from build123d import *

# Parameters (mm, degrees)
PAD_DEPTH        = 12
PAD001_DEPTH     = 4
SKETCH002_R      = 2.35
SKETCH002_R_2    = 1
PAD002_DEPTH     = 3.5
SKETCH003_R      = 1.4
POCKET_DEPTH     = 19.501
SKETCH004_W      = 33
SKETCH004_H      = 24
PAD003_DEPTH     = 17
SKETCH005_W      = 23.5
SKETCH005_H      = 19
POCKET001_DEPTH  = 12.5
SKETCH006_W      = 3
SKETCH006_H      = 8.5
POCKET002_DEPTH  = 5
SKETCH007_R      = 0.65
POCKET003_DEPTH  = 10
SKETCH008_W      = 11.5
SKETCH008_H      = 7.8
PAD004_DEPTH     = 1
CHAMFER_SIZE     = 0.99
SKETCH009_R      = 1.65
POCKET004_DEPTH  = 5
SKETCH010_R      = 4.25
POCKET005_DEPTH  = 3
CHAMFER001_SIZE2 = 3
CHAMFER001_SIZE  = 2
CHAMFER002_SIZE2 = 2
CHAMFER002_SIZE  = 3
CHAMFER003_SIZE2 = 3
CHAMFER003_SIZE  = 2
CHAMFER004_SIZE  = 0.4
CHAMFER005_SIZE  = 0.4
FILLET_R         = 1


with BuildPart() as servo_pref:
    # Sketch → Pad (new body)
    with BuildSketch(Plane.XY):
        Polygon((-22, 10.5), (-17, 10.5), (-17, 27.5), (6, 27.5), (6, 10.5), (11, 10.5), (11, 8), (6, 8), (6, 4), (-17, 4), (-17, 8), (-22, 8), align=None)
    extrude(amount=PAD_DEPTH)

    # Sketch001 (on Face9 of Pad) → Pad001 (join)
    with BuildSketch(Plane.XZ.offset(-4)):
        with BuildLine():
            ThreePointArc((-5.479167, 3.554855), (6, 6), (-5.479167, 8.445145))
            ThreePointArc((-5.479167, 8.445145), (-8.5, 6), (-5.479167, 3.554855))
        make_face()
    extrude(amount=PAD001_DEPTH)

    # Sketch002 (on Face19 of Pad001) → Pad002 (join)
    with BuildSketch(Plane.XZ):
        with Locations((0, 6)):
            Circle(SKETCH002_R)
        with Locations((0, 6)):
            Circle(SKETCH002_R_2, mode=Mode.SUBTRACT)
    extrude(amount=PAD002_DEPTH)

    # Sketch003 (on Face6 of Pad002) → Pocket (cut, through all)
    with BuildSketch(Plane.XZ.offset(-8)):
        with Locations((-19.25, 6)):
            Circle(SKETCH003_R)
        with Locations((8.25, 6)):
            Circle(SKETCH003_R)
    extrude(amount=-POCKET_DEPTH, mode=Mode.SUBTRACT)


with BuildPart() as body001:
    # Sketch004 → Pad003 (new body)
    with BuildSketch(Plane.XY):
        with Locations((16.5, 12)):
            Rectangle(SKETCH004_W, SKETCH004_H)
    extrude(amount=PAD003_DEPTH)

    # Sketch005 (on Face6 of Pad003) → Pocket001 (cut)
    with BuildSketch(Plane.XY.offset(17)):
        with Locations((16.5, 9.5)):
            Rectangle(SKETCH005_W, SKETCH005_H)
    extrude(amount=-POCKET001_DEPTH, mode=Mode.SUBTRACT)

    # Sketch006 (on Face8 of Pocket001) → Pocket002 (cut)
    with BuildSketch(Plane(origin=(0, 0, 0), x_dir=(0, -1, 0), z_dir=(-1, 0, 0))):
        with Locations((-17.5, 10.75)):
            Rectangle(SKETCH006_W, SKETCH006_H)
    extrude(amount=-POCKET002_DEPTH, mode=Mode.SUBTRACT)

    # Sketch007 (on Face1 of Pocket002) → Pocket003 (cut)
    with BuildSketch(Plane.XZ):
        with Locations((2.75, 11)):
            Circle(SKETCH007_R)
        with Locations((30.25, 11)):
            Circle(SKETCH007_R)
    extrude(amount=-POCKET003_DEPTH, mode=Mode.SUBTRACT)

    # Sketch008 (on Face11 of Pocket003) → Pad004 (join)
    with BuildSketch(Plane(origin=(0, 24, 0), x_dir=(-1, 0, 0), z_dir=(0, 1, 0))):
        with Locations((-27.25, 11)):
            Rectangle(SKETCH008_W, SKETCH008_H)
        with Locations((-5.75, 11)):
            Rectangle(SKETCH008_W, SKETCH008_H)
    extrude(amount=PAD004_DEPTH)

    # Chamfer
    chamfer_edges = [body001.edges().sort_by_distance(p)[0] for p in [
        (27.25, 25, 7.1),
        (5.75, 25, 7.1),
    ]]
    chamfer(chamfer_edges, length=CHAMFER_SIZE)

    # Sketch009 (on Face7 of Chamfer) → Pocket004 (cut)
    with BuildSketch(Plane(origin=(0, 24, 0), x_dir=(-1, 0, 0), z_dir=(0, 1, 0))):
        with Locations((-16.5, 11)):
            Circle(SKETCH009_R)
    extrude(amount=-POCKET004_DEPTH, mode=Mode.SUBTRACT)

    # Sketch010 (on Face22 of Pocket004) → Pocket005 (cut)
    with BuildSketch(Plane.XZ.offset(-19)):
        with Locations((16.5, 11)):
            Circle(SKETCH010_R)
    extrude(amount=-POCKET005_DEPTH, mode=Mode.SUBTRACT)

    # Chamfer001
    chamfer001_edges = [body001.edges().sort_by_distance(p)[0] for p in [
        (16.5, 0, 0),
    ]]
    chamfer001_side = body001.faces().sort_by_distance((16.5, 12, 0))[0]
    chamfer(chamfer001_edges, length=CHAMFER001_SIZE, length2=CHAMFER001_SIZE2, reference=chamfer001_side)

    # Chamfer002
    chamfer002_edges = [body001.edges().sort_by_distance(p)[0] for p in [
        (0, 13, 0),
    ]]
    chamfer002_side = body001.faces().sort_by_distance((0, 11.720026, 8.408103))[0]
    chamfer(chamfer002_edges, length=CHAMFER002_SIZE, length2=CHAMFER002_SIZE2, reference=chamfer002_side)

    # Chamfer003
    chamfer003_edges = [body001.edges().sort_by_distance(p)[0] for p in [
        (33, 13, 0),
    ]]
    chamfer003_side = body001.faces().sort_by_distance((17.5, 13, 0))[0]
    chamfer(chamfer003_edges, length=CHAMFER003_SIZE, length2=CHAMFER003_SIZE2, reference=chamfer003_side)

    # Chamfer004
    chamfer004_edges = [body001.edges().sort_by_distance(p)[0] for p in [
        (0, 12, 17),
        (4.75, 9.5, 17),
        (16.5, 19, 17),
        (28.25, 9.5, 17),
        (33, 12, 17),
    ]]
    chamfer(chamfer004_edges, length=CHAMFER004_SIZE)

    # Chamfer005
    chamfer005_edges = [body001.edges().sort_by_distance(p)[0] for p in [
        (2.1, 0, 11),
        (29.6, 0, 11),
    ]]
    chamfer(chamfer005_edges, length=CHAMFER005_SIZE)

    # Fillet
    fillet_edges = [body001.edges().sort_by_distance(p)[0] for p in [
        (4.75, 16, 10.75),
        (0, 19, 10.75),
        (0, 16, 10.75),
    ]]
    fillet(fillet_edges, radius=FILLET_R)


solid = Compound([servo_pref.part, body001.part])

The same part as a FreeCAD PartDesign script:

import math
import FreeCAD as App
import Part
import Sketcher

V = App.Vector
Q = App.Units.Quantity


def edges_at(feature, points):
    """Names of the edges that pass closest to the given points."""
    edges = feature.Shape.Edges
    near = lambda p: min(range(len(edges)), key=lambda i: edges[i].distToShape(Part.Vertex(*p))[0])
    return sorted({f"Edge{near(p) + 1}" for p in points})

doc = App.newDocument("Part")
params = doc.addObject("Spreadsheet::Sheet", "Params")
for row, (alias, value) in enumerate([
    ("sketch1_width", "5 mm"),
    ("sketch1_width2", "23 mm"),
    ("sketch1_height", "4 mm"),
    ("sketch1_height2", "17 mm"),
    ("sketch1_height3", "2.5 mm"),
    ("pad1_length", "12 mm"),
    ("sketch2_radius", "6 mm"),
    ("sketch2_radius2", "2.5 mm"),
    ("pad2_length", "4 mm"),
    ("sketch3_diameter", "2 mm"),
    ("sketch3_diameter2", "4.7 mm"),
    ("pad3_length", "3.5 mm"),
    ("sketch4_diameter", "2.8 mm"),
    ("sketch5_width", "33 mm"),
    ("sketch5_height", "24 mm"),
    ("pad4_length", "17 mm"),
    ("sketch6_height", "19 mm"),
    ("sketch6_width", "23.5 mm"),
    ("pocket2_length", "12.5 mm"),
    ("sketch7_width", "3 mm"),
    ("sketch7_height", "8.5 mm"),
    ("pocket3_length", "5 mm"),
    ("sketch8_diameter", "1.3 mm"),
    ("pocket4_length", "10 mm"),
    ("sketch9_width", "11.5 mm"),
    ("sketch9_height", "7.8 mm"),
    ("pad5_length", "1 mm"),
    ("chamfer_size", "0.99 mm"),
    ("sketch10_diameter", "3.3 mm"),
    ("pocket5_length", "5 mm"),
    ("sketch11_diameter", "8.5 mm"),
    ("pocket6_length", "3 mm"),
    ("chamfer2_size", "2 mm"),
    ("chamfer2_size2", "3 mm"),
    ("chamfer3_size", "3 mm"),
    ("chamfer3_size2", "2 mm"),
    ("chamfer4_size", "2 mm"),
    ("chamfer4_size2", "3 mm"),
    ("chamfer5_size", "0.4 mm"),
    ("chamfer6_size", "0.4 mm"),
    ("fillet_radius", "1 mm"),
], start=1):
    params.set(f"A{row}", alias)
    params.set(f"B{row}", "=" + value)
    params.setAlias(f"B{row}", alias)

body = doc.addObject("PartDesign::Body", "Body")

sketch1 = doc.addObject("Sketcher::SketchObject", "Sketch")
body.addObject(sketch1)
sketch1.AttachmentSupport = (doc.XY_Plane, [""])
sketch1.MapMode = "FlatFace"
sketch1.addGeometry([
    Part.LineSegment(V(-17, 10.5, 0), V(-22, 10.5, 0)),
    Part.LineSegment(V(-22, 10.5, 0), V(-22, 8, 0)),
    Part.LineSegment(V(-22, 8, 0), V(-17, 8, 0)),
    Part.LineSegment(V(-17, 8, 0), V(-17, 4, 0)),
    Part.LineSegment(V(-17, 4, 0), V(6, 4, 0)),
    Part.LineSegment(V(6, 4, 0), V(6, 8, 0)),
    Part.LineSegment(V(6, 8, 0), V(11, 8, 0)),
    Part.LineSegment(V(11, 8, 0), V(11, 10.5, 0)),
    Part.LineSegment(V(11, 10.5, 0), V(6, 10.5, 0)),
    Part.LineSegment(V(6, 10.5, 0), V(6, 27.5, 0)),
    Part.LineSegment(V(6, 27.5, 0), V(-17, 27.5, 0)),
    Part.LineSegment(V(-17, 27.5, 0), V(-17, 10.5, 0)),
], False)
sketch1.addConstraint([
    Sketcher.Constraint("Coincident", 0, 2, 1, 1),
    Sketcher.Constraint("Coincident", 1, 2, 2, 1),
    Sketcher.Constraint("Coincident", 2, 2, 3, 1),
    Sketcher.Constraint("Coincident", 3, 2, 4, 1),
    Sketcher.Constraint("Coincident", 4, 2, 5, 1),
    Sketcher.Constraint("Coincident", 5, 2, 6, 1),
    Sketcher.Constraint("Coincident", 6, 2, 7, 1),
    Sketcher.Constraint("Coincident", 7, 2, 8, 1),
    Sketcher.Constraint("Coincident", 8, 2, 9, 1),
    Sketcher.Constraint("Coincident", 9, 2, 10, 1),
    Sketcher.Constraint("Coincident", 10, 2, 11, 1),
    Sketcher.Constraint("Coincident", 11, 2, 0, 1),
    Sketcher.Constraint("Horizontal", 0),
    Sketcher.Constraint("Vertical", 1),
    Sketcher.Constraint("Horizontal", 2),
    Sketcher.Constraint("Vertical", 3),
    Sketcher.Constraint("Horizontal", 4),
    Sketcher.Constraint("Vertical", 5),
    Sketcher.Constraint("Horizontal", 6),
    Sketcher.Constraint("Vertical", 7),
    Sketcher.Constraint("Horizontal", 8),
    Sketcher.Constraint("Vertical", 9),
    Sketcher.Constraint("Horizontal", 10),
    Sketcher.Constraint("Vertical", 11),
    Sketcher.Constraint("Horizontal", 2, 2, 5, 2),
    Sketcher.Constraint("Horizontal", 0, 2, 7, 2),
    Sketcher.Constraint("Vertical", 5, 2, 8, 2),
    Sketcher.Constraint("Vertical", 3, 2, 10, 2),
    Sketcher.Constraint("Equal", 2, 6),
    Sketcher.Constraint("DistanceX", 0, 2, 0, 1, Q("5 mm")),
    Sketcher.Constraint("DistanceX", 4, 1, 4, 2, Q("23 mm")),
    Sketcher.Constraint("DistanceY", 3, 2, 3, 1, Q("4 mm")),
    Sketcher.Constraint("DistanceY", 9, 1, 9, 2, Q("17 mm")),
    Sketcher.Constraint("DistanceY", 1, 2, 1, 1, Q("2.5 mm")),
    Sketcher.Constraint("DistanceX", 0, 2, -1, 1, Q("22 mm")),
    Sketcher.Constraint("DistanceY", -1, 1, 1, 2, Q("8 mm")),
])
sketch1.setExpression("Constraints[29]", "Params.sketch1_width")
sketch1.setExpression("Constraints[30]", "Params.sketch1_width2")
sketch1.setExpression("Constraints[31]", "Params.sketch1_height")
sketch1.setExpression("Constraints[32]", "Params.sketch1_height2")
sketch1.setExpression("Constraints[33]", "Params.sketch1_height3")
pad1 = doc.addObject("PartDesign::Pad", "Pad")
body.addObject(pad1)
pad1.Profile = sketch1
pad1.setExpression("Length", "Params.pad1_length")

sketch2 = doc.addObject("Sketcher::SketchObject", "Sketch001")
body.addObject(sketch2)
sketch2.AttachmentSupport = (doc.XZ_Plane, [""])
sketch2.MapMode = "FlatFace"
sketch2.AttachmentOffset = App.Placement(V(0, 0, -4), App.Rotation())
sketch2.addGeometry([
    Part.ArcOfCircle(Part.Circle(V(0, 6, 0), V(0, 0, 1), 6), math.radians(-156), math.radians(156)),
    Part.ArcOfCircle(Part.Circle(V(-6, 6, 0), V(0, 0, 1), 2.5), math.radians(78), math.radians(282)),
], False)
sketch2.addConstraint([
    Sketcher.Constraint("Coincident", 0, 1, 1, 2),
    Sketcher.Constraint("Coincident", 1, 1, 0, 2),
    Sketcher.Constraint("PointOnObject", 0, 3, -2),
    Sketcher.Constraint("Horizontal", 0, 3, 1, 3),
    Sketcher.Constraint("Radius", 0, Q("6 mm")),
    Sketcher.Constraint("Radius", 1, Q("2.5 mm")),
    Sketcher.Constraint("DistanceY", -1, 1, 0, 3, Q("6 mm")),
    Sketcher.Constraint("DistanceX", 1, 3, -1, 1, Q("6 mm")),
])
sketch2.setExpression("Constraints[4]", "Params.sketch2_radius")
sketch2.setExpression("Constraints[5]", "Params.sketch2_radius2")
pad2 = doc.addObject("PartDesign::Pad", "Pad001")
body.addObject(pad2)
pad2.Profile = sketch2
pad2.setExpression("Length", "Params.pad2_length")

sketch3 = doc.addObject("Sketcher::SketchObject", "Sketch002")
body.addObject(sketch3)
sketch3.AttachmentSupport = (doc.XZ_Plane, [""])
sketch3.MapMode = "FlatFace"
sketch3.addGeometry([
    Part.Circle(V(0, 6, 0), V(0, 0, 1), 2.4),
    Part.Circle(V(0, 6, 0), V(0, 0, 1), 1),
], False)
sketch3.addConstraint([
    Sketcher.Constraint("Coincident", 1, 3, 0, 3),
    Sketcher.Constraint("PointOnObject", 0, 3, -2),
    Sketcher.Constraint("Diameter", 1, Q("2 mm")),
    Sketcher.Constraint("Diameter", 0, Q("4.7 mm")),
    Sketcher.Constraint("DistanceY", -1, 1, 0, 3, Q("6 mm")),
])
sketch3.setExpression("Constraints[2]", "Params.sketch3_diameter")
sketch3.setExpression("Constraints[3]", "Params.sketch3_diameter2")
pad3 = doc.addObject("PartDesign::Pad", "Pad002")
body.addObject(pad3)
pad3.Profile = sketch3
pad3.setExpression("Length", "Params.pad3_length")

sketch4 = doc.addObject("Sketcher::SketchObject", "Sketch003")
body.addObject(sketch4)
sketch4.AttachmentSupport = (doc.XZ_Plane, [""])
sketch4.MapMode = "FlatFace"
sketch4.AttachmentOffset = App.Placement(V(0, 0, -8), App.Rotation())
sketch4.addGeometry([
    Part.Circle(V(-19.2, 6, 0), V(0, 0, 1), 1.4),
    Part.Circle(V(8.2, 6, 0), V(0, 0, 1), 1.4),
], False)
sketch4.addConstraint([
    Sketcher.Constraint("Equal", 0, 1),
    Sketcher.Constraint("Horizontal", 0, 3, 1, 3),
    Sketcher.Constraint("Diameter", 0, Q("2.8 mm")),
    Sketcher.Constraint("DistanceY", -1, 1, 0, 3, Q("6 mm")),
    Sketcher.Constraint("DistanceX", 0, 3, 1, 3, Q("27.5 mm")),
    Sketcher.Constraint("DistanceX", 0, 3, -1, 1, Q("19.25 mm")),
])
sketch4.setExpression("Constraints[2]", "Params.sketch4_diameter")
pocket1 = doc.addObject("PartDesign::Pocket", "Pocket")
body.addObject(pocket1)
pocket1.Profile = sketch4
pocket1.Type = "ThroughAll"
body2 = doc.addObject("PartDesign::Body", "Body001")

sketch5 = doc.addObject("Sketcher::SketchObject", "Sketch004")
body2.addObject(sketch5)
sketch5.AttachmentSupport = (doc.getObject("XY_Plane001"), [""])
sketch5.MapMode = "FlatFace"
sketch5.addGeometry([
    Part.LineSegment(V(0, 24, 0), V(0, 0, 0)),
    Part.LineSegment(V(0, 0, 0), V(33, 0, 0)),
    Part.LineSegment(V(33, 0, 0), V(33, 24, 0)),
    Part.LineSegment(V(33, 24, 0), V(0, 24, 0)),
], False)
sketch5.addConstraint([
    Sketcher.Constraint("Coincident", 0, 2, 1, 1),
    Sketcher.Constraint("Coincident", 1, 2, 2, 1),
    Sketcher.Constraint("Coincident", 2, 2, 3, 1),
    Sketcher.Constraint("Coincident", 3, 2, 0, 1),
    Sketcher.Constraint("Vertical", 0),
    Sketcher.Constraint("Horizontal", 1),
    Sketcher.Constraint("Vertical", 2),
    Sketcher.Constraint("Horizontal", 3),
    Sketcher.Constraint("Coincident", 0, 2, -1, 1),
    Sketcher.Constraint("DistanceX", 1, 1, 1, 2, Q("33 mm")),
    Sketcher.Constraint("DistanceY", 0, 2, 0, 1, Q("24 mm")),
])
sketch5.setExpression("Constraints[9]", "Params.sketch5_width")
sketch5.setExpression("Constraints[10]", "Params.sketch5_height")
pad4 = doc.addObject("PartDesign::Pad", "Pad003")
body2.addObject(pad4)
pad4.Profile = sketch5
pad4.setExpression("Length", "Params.pad4_length")

sketch6 = doc.addObject("Sketcher::SketchObject", "Sketch005")
body2.addObject(sketch6)
sketch6.AttachmentSupport = (doc.getObject("XY_Plane001"), [""])
sketch6.MapMode = "FlatFace"
sketch6.AttachmentOffset = App.Placement(V(0, 0, 17), App.Rotation())
sketch6.addGeometry([
    Part.LineSegment(V(5, 19, 0), V(5, 0, 0)),
    Part.LineSegment(V(5, 0, 0), V(28, 0, 0)),
    Part.LineSegment(V(28, 0, 0), V(28, 19, 0)),
    Part.LineSegment(V(28, 19, 0), V(5, 19, 0)),
], False)
sketch6.addConstraint([
    Sketcher.Constraint("Coincident", 0, 2, 1, 1),
    Sketcher.Constraint("Coincident", 1, 2, 2, 1),
    Sketcher.Constraint("Coincident", 2, 2, 3, 1),
    Sketcher.Constraint("Coincident", 3, 2, 0, 1),
    Sketcher.Constraint("Vertical", 0),
    Sketcher.Constraint("Horizontal", 1),
    Sketcher.Constraint("Vertical", 2),
    Sketcher.Constraint("Horizontal", 3),
    Sketcher.Constraint("PointOnObject", 0, 2, -1),
    Sketcher.Constraint("DistanceY", 0, 2, 0, 1, Q("19 mm")),
    Sketcher.Constraint("DistanceX", 1, 1, 1, 2, Q("23.5 mm")),
    Sketcher.Constraint("DistanceX", -1, 1, 0, 2, Q("4.75 mm")),
])
sketch6.setExpression("Constraints[9]", "Params.sketch6_height")
sketch6.setExpression("Constraints[10]", "Params.sketch6_width")
pocket2 = doc.addObject("PartDesign::Pocket", "Pocket001")
body2.addObject(pocket2)
pocket2.Profile = sketch6
pocket2.setExpression("Length", "Params.pocket2_length")

sketch7 = doc.addObject("Sketcher::SketchObject", "Sketch006")
body2.addObject(sketch7)
sketch7.AttachmentSupport = (doc.getObject("YZ_Plane001"), [""])
sketch7.MapMode = "FlatFace"
sketch7.addGeometry([
    Part.LineSegment(V(19, 15, 0), V(19, 6.5, 0)),
    Part.LineSegment(V(19, 6.5, 0), V(16, 6.5, 0)),
    Part.LineSegment(V(16, 6.5, 0), V(16, 15, 0)),
    Part.LineSegment(V(16, 15, 0), V(19, 15, 0)),
], False)
sketch7.addConstraint([
    Sketcher.Constraint("Coincident", 0, 2, 1, 1),
    Sketcher.Constraint("Coincident", 1, 2, 2, 1),
    Sketcher.Constraint("Coincident", 2, 2, 3, 1),
    Sketcher.Constraint("Coincident", 3, 2, 0, 1),
    Sketcher.Constraint("Vertical", 0),
    Sketcher.Constraint("Horizontal", 1),
    Sketcher.Constraint("Vertical", 2),
    Sketcher.Constraint("Horizontal", 3),
    Sketcher.Constraint("DistanceX", 1, 2, 1, 1, Q("3 mm")),
    Sketcher.Constraint("DistanceY", 0, 2, 0, 1, Q("8.5 mm")),
    Sketcher.Constraint("DistanceX", -1, 1, 0, 2, Q("19 mm")),
    Sketcher.Constraint("DistanceY", -1, 1, 2, 2, Q("15 mm")),
])
sketch7.setExpression("Constraints[8]", "Params.sketch7_width")
sketch7.setExpression("Constraints[9]", "Params.sketch7_height")
pocket3 = doc.addObject("PartDesign::Pocket", "Pocket002")
body2.addObject(pocket3)
pocket3.Profile = sketch7
pocket3.setExpression("Length", "Params.pocket3_length")
pocket3.Reversed = True

sketch8 = doc.addObject("Sketcher::SketchObject", "Sketch007")
body2.addObject(sketch8)
sketch8.AttachmentSupport = (doc.getObject("XZ_Plane001"), [""])
sketch8.MapMode = "FlatFace"
sketch8.addGeometry([
    Part.Circle(V(2.8, 11, 0), V(0, 0, 1), 0.7),
    Part.Circle(V(30.2, 11, 0), V(0, 0, 1), 0.7),
], False)
sketch8.addConstraint([
    Sketcher.Constraint("Equal", 0, 1),
    Sketcher.Constraint("Horizontal", 0, 3, 1, 3),
    Sketcher.Constraint("Diameter", 0, Q("1.3 mm")),
    Sketcher.Constraint("DistanceY", -1, 1, 0, 3, Q("11 mm")),
    Sketcher.Constraint("DistanceX", 0, 3, 1, 3, Q("27.5 mm")),
    Sketcher.Constraint("DistanceX", -1, 1, 0, 3, Q("2.75 mm")),
])
sketch8.setExpression("Constraints[2]", "Params.sketch8_diameter")
pocket4 = doc.addObject("PartDesign::Pocket", "Pocket003")
body2.addObject(pocket4)
pocket4.Profile = sketch8
pocket4.setExpression("Length", "Params.pocket4_length")

sketch9 = doc.addObject("Sketcher::SketchObject", "Sketch008")
body2.addObject(sketch9)
sketch9.AttachmentSupport = (doc.getObject("XZ_Plane001"), [""])
sketch9.MapMode = "FlatFace"
sketch9.AttachmentOffset = App.Placement(V(0, 0, -24), App.Rotation())
sketch9.addGeometry([
    Part.LineSegment(V(33, 15, 0), V(33, 7, 0)),
    Part.LineSegment(V(33, 7, 0), V(22, 7, 0)),
    Part.LineSegment(V(22, 7, 0), V(22, 15, 0)),
    Part.LineSegment(V(22, 15, 0), V(33, 15, 0)),
    Part.LineSegment(V(12, 15, 0), V(12, 7, 0)),
    Part.LineSegment(V(12, 7, 0), V(0, 7, 0)),
    Part.LineSegment(V(0, 7, 0), V(0, 15, 0)),
    Part.LineSegment(V(0, 15, 0), V(12, 15, 0)),
], False)
sketch9.addConstraint([
    Sketcher.Constraint("Coincident", 0, 2, 1, 1),
    Sketcher.Constraint("Coincident", 1, 2, 2, 1),
    Sketcher.Constraint("Coincident", 2, 2, 3, 1),
    Sketcher.Constraint("Coincident", 3, 2, 0, 1),
    Sketcher.Constraint("Coincident", 4, 2, 5, 1),
    Sketcher.Constraint("Coincident", 5, 2, 6, 1),
    Sketcher.Constraint("Coincident", 6, 2, 7, 1),
    Sketcher.Constraint("Coincident", 7, 2, 4, 1),
    Sketcher.Constraint("Vertical", 0),
    Sketcher.Constraint("Horizontal", 1),
    Sketcher.Constraint("Vertical", 2),
    Sketcher.Constraint("Horizontal", 3),
    Sketcher.Constraint("Vertical", 4),
    Sketcher.Constraint("Horizontal", 5),
    Sketcher.Constraint("Vertical", 6),
    Sketcher.Constraint("Horizontal", 7),
    Sketcher.Constraint("PointOnObject", 5, 2, -2),
    Sketcher.Constraint("Horizontal", 1, 2, 4, 2),
    Sketcher.Constraint("Horizontal", 3, 2, 6, 2),
    Sketcher.Constraint("Equal", 3, 5),
    Sketcher.Constraint("DistanceX", 1, 2, 1, 1, Q("11.5 mm")),
    Sketcher.Constraint("DistanceY", 0, 2, 0, 1, Q("7.8 mm")),
    Sketcher.Constraint("DistanceX", -1, 1, 0, 2, Q("33 mm")),
    Sketcher.Constraint("DistanceY", -1, 1, 0, 2, Q("7.1 mm")),
])
sketch9.setExpression("Constraints[20]", "Params.sketch9_width")
sketch9.setExpression("Constraints[21]", "Params.sketch9_height")
pad5 = doc.addObject("PartDesign::Pad", "Pad004")
body2.addObject(pad5)
pad5.Profile = sketch9
pad5.setExpression("Length", "Params.pad5_length")
pad5.Reversed = True
doc.recompute()

chamfer = doc.addObject("PartDesign::Chamfer", "Chamfer")
body2.addObject(chamfer)
chamfer.Base = (pad5, edges_at(pad5, [(27.25, 25, 7.1), (5.75, 25, 7.1)]))
chamfer.setExpression("Size", "Params.chamfer_size")

sketch10 = doc.addObject("Sketcher::SketchObject", "Sketch009")
body2.addObject(sketch10)
sketch10.AttachmentSupport = (doc.getObject("XZ_Plane001"), [""])
sketch10.MapMode = "FlatFace"
sketch10.AttachmentOffset = App.Placement(V(0, 0, -24), App.Rotation())
sketch10.addGeometry(Part.Circle(V(16.5, 11, 0), V(0, 0, 1), 1.6), False)
sketch10.addConstraint([
    Sketcher.Constraint("Diameter", 0, Q("3.3 mm")),
    Sketcher.Constraint("DistanceY", -1, 1, 0, 3, Q("11 mm")),
    Sketcher.Constraint("DistanceX", -1, 1, 0, 3, Q("16.5 mm")),
])
sketch10.setExpression("Constraints[0]", "Params.sketch10_diameter")
pocket5 = doc.addObject("PartDesign::Pocket", "Pocket004")
body2.addObject(pocket5)
pocket5.Profile = sketch10
pocket5.setExpression("Length", "Params.pocket5_length")
pocket5.Reversed = True

sketch11 = doc.addObject("Sketcher::SketchObject", "Sketch010")
body2.addObject(sketch11)
sketch11.AttachmentSupport = (doc.getObject("XZ_Plane001"), [""])
sketch11.MapMode = "FlatFace"
sketch11.AttachmentOffset = App.Placement(V(0, 0, -19), App.Rotation())
sketch11.addGeometry(Part.Circle(V(16.5, 11, 0), V(0, 0, 1), 4.2), False)
sketch11.addConstraint([
    Sketcher.Constraint("Diameter", 0, Q("8.5 mm")),
    Sketcher.Constraint("DistanceY", -1, 1, 0, 3, Q("11 mm")),
    Sketcher.Constraint("DistanceX", -1, 1, 0, 3, Q("16.5 mm")),
])
sketch11.setExpression("Constraints[0]", "Params.sketch11_diameter")
pocket6 = doc.addObject("PartDesign::Pocket", "Pocket005")
body2.addObject(pocket6)
pocket6.Profile = sketch11
pocket6.setExpression("Length", "Params.pocket6_length")
doc.recompute()

chamfer2 = doc.addObject("PartDesign::Chamfer", "Chamfer001")
body2.addObject(chamfer2)
chamfer2.Base = (pocket6, edges_at(pocket6, [(16.5, 0, 0)]))
chamfer2.ChamferType = "Two distances"
chamfer2.setExpression("Size", "Params.chamfer2_size")
chamfer2.setExpression("Size2", "Params.chamfer2_size2")
doc.recompute()

chamfer3 = doc.addObject("PartDesign::Chamfer", "Chamfer002")
body2.addObject(chamfer3)
chamfer3.Base = (chamfer2, edges_at(chamfer2, [(0, 13, 0)]))
chamfer3.ChamferType = "Two distances"
chamfer3.setExpression("Size", "Params.chamfer3_size")
chamfer3.setExpression("Size2", "Params.chamfer3_size2")
doc.recompute()

chamfer4 = doc.addObject("PartDesign::Chamfer", "Chamfer003")
body2.addObject(chamfer4)
chamfer4.Base = (chamfer3, edges_at(chamfer3, [(33, 13, 0)]))
chamfer4.ChamferType = "Two distances"
chamfer4.setExpression("Size", "Params.chamfer4_size")
chamfer4.setExpression("Size2", "Params.chamfer4_size2")
doc.recompute()

chamfer5 = doc.addObject("PartDesign::Chamfer", "Chamfer004")
body2.addObject(chamfer5)
chamfer5.Base = (chamfer4, edges_at(chamfer4, [
    (0, 12, 17),
    (4.75, 9.5, 17),
    (16.5, 19, 17),
    (28.25, 9.5, 17),
    (33, 12, 17),
]))
chamfer5.setExpression("Size", "Params.chamfer5_size")
doc.recompute()

chamfer6 = doc.addObject("PartDesign::Chamfer", "Chamfer005")
body2.addObject(chamfer6)
chamfer6.Base = (chamfer5, edges_at(chamfer5, [(2.1, 0, 11), (29.6, 0, 11)]))
chamfer6.setExpression("Size", "Params.chamfer6_size")
doc.recompute()

fillet = doc.addObject("PartDesign::Fillet", "Fillet")
body2.addObject(fillet)
fillet.Base = (chamfer6, edges_at(chamfer6, [(4.75, 16, 10.75), (0, 19, 10.75), (0, 16, 10.75)]))
fillet.setExpression("Radius", "Params.fillet_radius")

doc.recompute()
